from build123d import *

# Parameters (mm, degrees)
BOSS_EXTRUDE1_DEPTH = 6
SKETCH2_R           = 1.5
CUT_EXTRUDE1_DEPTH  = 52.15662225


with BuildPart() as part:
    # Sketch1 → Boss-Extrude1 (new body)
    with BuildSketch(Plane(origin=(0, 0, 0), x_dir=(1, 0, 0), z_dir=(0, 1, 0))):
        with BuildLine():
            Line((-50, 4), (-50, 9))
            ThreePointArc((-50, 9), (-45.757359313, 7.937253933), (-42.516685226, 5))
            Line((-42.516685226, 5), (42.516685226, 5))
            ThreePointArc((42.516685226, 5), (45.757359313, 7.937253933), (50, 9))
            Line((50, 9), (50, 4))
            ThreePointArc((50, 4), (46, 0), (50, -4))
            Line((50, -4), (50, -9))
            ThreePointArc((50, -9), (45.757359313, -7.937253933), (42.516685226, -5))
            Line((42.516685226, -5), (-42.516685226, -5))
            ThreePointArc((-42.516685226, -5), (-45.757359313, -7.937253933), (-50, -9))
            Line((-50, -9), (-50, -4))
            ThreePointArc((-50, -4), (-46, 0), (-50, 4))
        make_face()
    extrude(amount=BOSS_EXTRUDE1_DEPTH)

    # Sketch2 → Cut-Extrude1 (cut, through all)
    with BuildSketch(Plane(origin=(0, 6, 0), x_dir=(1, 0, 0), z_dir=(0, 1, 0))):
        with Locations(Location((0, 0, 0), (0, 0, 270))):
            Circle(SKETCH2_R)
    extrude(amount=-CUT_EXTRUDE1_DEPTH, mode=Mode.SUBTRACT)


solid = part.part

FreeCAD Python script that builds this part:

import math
import FreeCAD as App
import Part
import Sketcher

V = App.Vector

doc = App.newDocument("Part")
body = doc.addObject("PartDesign::Body", "Body")

# Sketch on XZ plane
sketch1 = body.newObject("Sketcher::SketchObject", "Sketch")
sketch1.AttachmentSupport = (doc.getObject("XZ_Plane"), [""])
sketch1.MapMode = "FlatFace"
sketch1.addGeometry([
    Part.LineSegment(V(-50, -9, 0), V(-50, -4, 0)),  # 0
    Part.ArcOfCircle(Part.Circle(V(-50, 0, 0), V(0, 0, 1), 4), math.radians(-90), math.radians(90)),  # 1
    Part.LineSegment(V(-50, 4, 0), V(-50, 9, 0)),  # 2
    Part.ArcOfCircle(Part.Circle(V(-50, 0, 0), V(0, 0, 1), 9), math.radians(34), math.radians(90)),  # 3
    Part.LineSegment(V(-42.5, 5, 0), V(42.5, 5, 0)),  # 4
    Part.ArcOfCircle(Part.Circle(V(50, 0, 0), V(0, 0, 1), 9), math.radians(90), math.radians(146)),  # 5
    Part.LineSegment(V(50, 9, 0), V(50, 4, 0)),  # 6
    Part.ArcOfCircle(Part.Circle(V(50, 0, 0), V(0, 0, 1), 4), math.radians(90), math.radians(270)),  # 7
    Part.LineSegment(V(50, -4, 0), V(50, -9, 0)),  # 8
    Part.ArcOfCircle(Part.Circle(V(50, 0, 0), V(0, 0, 1), 9), math.radians(-146), math.radians(-90)),  # 9
    Part.LineSegment(V(42.5, -5, 0), V(-42.5, -5, 0)),  # 10
    Part.ArcOfCircle(Part.Circle(V(-50, 0, 0), V(0, 0, 1), 9), math.radians(-90), math.radians(-34)),  # 11
], False)
sketch1.addConstraint([
    Sketcher.Constraint("Coincident", 0, 2, 1, 1),
    Sketcher.Constraint("Coincident", 1, 2, 2, 1),
    Sketcher.Constraint("Coincident", 2, 2, 3, 2),
    Sketcher.Constraint("Coincident", 3, 1, 4, 1),
    Sketcher.Constraint("Coincident", 4, 2, 5, 2),
    Sketcher.Constraint("Coincident", 5, 1, 6, 1),
    Sketcher.Constraint("Coincident", 6, 2, 7, 1),
    Sketcher.Constraint("Coincident", 7, 2, 8, 1),
    Sketcher.Constraint("Coincident", 8, 2, 9, 2),
    Sketcher.Constraint("Coincident", 9, 1, 10, 1),
    Sketcher.Constraint("Coincident", 10, 2, 11, 2),
    Sketcher.Constraint("Coincident", 11, 1, 0, 1),
    Sketcher.Constraint("Vertical", 0),
    Sketcher.Constraint("Vertical", 2),
    Sketcher.Constraint("Horizontal", 4),
    Sketcher.Constraint("Vertical", 6),
    Sketcher.Constraint("Vertical", 8),
    Sketcher.Constraint("Horizontal", 10),
    Sketcher.Constraint("Coincident", 3, 3, 1, 3),
    Sketcher.Constraint("Coincident", 7, 3, 5, 3),
    Sketcher.Constraint("Coincident", 9, 3, 5, 3),
    Sketcher.Constraint("Coincident", 11, 3, 1, 3),
    Sketcher.Constraint("Equal", 3, 5),
    Sketcher.Constraint("Equal", 1, 7),
    Sketcher.Constraint("Equal", 5, 9),
    Sketcher.Constraint("Equal", 9, 11),
    Sketcher.Constraint("Symmetric", 1, 3, 5, 3, -1, 1),
    Sketcher.Constraint("Symmetric", 2, 2, 5, 1, -2),
    Sketcher.Constraint("Vertical", 11, 3, 0, 2),
    Sketcher.Constraint("Vertical", 0, 2, 1, 2),
    Sketcher.Constraint("Vertical", 6, 2, 7, 2),
    Sketcher.Constraint("Vertical", 4, 2, 9, 1),
    Sketcher.Constraint("Radius", 1, 4.0),
    Sketcher.Constraint("Radius", 3, 9.0),
    Sketcher.Constraint("DistanceX", 1, 3, -1, 1, 50.0),
    Sketcher.Constraint("DistanceY", -1, 1, 3, 1, 5.0),
])
pad1 = body.newObject("PartDesign::Pad", "Pad")
pad1.Profile = sketch1
pad1.Length = 6
pad1.Reversed = True

# Sketch on XZ plane
sketch2 = body.newObject("Sketcher::SketchObject", "Sketch001")
sketch2.AttachmentSupport = (doc.getObject("XZ_Plane"), [""])
sketch2.MapMode = "FlatFace"
sketch2.AttachmentOffset = App.Placement(V(0, 0, -6), App.Rotation())
sketch2.addGeometry(Part.Circle(V(0, 0, 0), V(0, 0, 1), 1.5), False)
sketch2.addConstraint([
    Sketcher.Constraint("Coincident", 0, 3, -1, 1),
    Sketcher.Constraint("Diameter", 0, 3.0),
])
pocket1 = body.newObject("PartDesign::Pocket", "Pocket")
pocket1.Profile = sketch2
pocket1.Type = "ThroughAll"
pocket1.Reversed = True

doc.recompute()
